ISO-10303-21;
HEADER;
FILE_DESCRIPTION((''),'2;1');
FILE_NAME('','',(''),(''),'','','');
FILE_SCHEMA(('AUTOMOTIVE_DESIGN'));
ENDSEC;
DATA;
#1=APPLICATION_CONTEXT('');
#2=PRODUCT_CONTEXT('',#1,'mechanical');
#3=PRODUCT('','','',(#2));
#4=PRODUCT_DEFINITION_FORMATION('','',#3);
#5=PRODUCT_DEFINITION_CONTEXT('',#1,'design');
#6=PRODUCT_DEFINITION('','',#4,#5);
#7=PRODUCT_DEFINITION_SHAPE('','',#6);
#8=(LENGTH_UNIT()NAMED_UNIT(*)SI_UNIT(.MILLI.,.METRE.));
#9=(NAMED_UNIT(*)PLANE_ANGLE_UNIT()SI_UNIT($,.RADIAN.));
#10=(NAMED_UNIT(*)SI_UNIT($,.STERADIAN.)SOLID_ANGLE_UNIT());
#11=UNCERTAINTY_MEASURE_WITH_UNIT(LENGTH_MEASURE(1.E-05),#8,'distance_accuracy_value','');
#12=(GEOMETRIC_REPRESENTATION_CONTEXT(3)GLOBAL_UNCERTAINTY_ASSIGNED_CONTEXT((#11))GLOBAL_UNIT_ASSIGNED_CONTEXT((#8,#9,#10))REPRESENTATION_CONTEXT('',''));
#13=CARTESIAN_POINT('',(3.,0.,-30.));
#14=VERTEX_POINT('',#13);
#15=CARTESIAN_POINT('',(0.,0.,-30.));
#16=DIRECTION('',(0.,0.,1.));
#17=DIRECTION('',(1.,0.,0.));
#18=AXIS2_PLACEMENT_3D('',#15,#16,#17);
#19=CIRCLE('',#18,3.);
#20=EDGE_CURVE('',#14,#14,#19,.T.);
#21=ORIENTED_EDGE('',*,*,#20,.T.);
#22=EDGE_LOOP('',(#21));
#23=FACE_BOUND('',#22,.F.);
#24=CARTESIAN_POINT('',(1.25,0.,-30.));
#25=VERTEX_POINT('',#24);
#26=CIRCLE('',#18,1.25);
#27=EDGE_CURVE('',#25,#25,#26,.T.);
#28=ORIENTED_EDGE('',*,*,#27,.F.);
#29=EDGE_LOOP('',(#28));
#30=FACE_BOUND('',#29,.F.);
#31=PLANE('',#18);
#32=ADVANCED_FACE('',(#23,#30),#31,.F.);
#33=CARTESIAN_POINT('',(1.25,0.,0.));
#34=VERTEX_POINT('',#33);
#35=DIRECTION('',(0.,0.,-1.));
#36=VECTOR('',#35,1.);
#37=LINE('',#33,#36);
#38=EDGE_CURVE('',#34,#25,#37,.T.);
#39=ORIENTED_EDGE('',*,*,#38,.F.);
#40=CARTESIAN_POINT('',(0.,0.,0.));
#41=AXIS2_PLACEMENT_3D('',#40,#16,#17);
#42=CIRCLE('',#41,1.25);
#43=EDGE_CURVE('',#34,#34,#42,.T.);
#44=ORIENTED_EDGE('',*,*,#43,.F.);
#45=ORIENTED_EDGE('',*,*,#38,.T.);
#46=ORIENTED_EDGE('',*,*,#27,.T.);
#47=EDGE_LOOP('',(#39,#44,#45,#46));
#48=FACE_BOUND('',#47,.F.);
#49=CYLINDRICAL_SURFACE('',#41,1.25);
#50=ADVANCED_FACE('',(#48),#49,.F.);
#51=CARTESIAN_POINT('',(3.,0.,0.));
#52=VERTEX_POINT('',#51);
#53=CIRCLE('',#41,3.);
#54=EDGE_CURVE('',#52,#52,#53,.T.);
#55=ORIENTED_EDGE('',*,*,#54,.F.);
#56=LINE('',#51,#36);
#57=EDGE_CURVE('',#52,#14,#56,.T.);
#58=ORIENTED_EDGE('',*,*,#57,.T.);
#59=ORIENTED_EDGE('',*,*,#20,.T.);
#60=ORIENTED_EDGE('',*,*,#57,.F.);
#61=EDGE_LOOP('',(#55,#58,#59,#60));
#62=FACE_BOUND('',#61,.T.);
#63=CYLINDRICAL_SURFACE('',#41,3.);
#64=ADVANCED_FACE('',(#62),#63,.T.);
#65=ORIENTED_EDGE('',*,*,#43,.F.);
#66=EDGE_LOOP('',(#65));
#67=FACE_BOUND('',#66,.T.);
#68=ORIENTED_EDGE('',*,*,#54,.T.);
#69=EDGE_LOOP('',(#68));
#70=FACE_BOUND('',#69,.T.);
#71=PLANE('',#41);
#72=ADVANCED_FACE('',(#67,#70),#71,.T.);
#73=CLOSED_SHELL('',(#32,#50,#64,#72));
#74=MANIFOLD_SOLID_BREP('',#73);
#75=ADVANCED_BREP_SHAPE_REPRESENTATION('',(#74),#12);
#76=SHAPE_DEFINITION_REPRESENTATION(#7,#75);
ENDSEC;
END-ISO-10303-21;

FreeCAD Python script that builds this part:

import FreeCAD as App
import Part
import Sketcher

V = App.Vector

doc = App.newDocument("Part")
body = doc.addObject("PartDesign::Body", "Body")

# Sketch on XY plane
sketch1 = body.newObject("Sketcher::SketchObject", "Sketch")
sketch1.AttachmentSupport = (doc.getObject("XY_Plane"), [""])
sketch1.MapMode = "FlatFace"
sketch1.addGeometry(Part.Circle(V(0, 0, 0), V(0, 0, 1), 3), False)
sketch1.addGeometry(Part.Circle(V(0, 0, 0), V(0, 0, 1), 1.2), False)
sketch1.addConstraint(Sketcher.Constraint("Coincident", 0, 3, -1, 1))
sketch1.addConstraint(Sketcher.Constraint("Coincident", 1, 3, -1, 1))
sketch1.addConstraint(Sketcher.Constraint("Diameter", 0, 6.0))
sketch1.addConstraint(Sketcher.Constraint("Diameter", 1, 2.5))
pad1 = body.newObject("PartDesign::Pad", "Pad")
pad1.Profile = sketch1
pad1.Length = 30
pad1.Reversed = True

doc.recompute()
